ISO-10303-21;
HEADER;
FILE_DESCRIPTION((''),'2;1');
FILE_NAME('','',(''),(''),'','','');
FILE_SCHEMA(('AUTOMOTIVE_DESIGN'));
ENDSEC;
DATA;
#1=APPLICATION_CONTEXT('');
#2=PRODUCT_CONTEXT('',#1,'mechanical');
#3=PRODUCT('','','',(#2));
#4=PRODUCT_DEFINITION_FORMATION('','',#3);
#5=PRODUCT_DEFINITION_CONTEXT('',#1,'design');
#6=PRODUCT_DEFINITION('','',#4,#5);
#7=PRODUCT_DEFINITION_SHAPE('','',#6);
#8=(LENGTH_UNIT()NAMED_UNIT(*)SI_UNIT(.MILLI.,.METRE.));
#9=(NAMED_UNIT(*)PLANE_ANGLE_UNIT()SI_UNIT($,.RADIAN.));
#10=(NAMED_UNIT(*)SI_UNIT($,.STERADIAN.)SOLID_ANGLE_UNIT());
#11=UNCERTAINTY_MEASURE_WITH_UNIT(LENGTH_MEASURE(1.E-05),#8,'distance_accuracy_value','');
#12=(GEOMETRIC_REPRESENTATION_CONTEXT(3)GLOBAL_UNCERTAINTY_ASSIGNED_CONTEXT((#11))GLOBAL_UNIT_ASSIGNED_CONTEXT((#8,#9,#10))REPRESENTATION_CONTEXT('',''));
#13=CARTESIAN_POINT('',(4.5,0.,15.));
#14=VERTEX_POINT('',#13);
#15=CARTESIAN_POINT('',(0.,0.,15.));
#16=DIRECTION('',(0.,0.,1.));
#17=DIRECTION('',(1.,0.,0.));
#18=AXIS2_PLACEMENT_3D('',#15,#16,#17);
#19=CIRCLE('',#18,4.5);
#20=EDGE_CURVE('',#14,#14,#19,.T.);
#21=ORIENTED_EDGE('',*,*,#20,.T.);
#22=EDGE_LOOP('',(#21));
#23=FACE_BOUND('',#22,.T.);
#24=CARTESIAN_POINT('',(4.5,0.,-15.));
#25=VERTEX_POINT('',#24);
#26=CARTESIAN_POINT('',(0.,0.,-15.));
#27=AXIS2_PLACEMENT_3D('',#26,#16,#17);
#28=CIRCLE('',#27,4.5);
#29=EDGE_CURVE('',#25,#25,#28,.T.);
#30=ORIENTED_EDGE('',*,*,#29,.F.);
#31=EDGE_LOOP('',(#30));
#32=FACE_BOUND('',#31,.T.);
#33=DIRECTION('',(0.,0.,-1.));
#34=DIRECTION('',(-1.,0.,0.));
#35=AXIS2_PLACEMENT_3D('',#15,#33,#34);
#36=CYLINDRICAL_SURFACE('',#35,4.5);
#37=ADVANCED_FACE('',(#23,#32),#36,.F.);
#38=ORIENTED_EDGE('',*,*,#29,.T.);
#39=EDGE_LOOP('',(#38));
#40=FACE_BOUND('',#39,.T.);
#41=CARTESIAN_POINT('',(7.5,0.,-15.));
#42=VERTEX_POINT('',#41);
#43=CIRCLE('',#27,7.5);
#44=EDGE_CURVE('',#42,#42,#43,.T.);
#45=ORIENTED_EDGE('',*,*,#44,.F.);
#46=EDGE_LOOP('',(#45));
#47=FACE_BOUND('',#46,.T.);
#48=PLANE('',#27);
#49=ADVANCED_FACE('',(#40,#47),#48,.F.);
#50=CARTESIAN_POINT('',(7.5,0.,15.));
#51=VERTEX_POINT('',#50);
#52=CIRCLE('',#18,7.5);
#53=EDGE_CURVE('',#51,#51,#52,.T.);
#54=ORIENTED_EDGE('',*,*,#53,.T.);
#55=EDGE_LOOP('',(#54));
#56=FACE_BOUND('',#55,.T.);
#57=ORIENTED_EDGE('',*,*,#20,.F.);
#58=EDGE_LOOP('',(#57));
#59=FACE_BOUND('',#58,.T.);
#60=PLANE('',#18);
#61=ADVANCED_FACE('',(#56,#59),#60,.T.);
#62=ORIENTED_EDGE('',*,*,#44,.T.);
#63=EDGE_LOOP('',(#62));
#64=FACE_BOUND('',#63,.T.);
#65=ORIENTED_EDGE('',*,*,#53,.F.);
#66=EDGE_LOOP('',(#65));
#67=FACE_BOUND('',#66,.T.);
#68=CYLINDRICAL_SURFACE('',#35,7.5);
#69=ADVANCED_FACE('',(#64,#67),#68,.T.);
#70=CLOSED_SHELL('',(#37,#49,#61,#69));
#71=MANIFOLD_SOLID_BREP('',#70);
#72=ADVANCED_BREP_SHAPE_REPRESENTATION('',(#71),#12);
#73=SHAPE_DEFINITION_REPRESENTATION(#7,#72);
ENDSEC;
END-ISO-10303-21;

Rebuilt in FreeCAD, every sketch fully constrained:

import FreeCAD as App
import Part
import Sketcher
from FreeCAD import Vector

doc = App.newDocument("Part")
body = doc.addObject("PartDesign::Body", "Body")

sketch1 = body.newObject("Sketcher::SketchObject", "Sketch")
sketch1.AttachmentSupport = (doc.getObject("XY_Plane"), [""])
sketch1.MapMode = "FlatFace"
sketch1.addGeometry([
    Part.Circle(Vector(0, 0, 0), Vector(0, 0, 1), 7.5),
    Part.Circle(Vector(0, 0, 0), Vector(0, 0, 1), 4.5),
], False)
sketch1.addConstraint([
    Sketcher.Constraint("Coincident", 0, 3, -1, 1),
    Sketcher.Constraint("Coincident", 1, 3, -1, 1),
    Sketcher.Constraint("Diameter", 0, 15.0),
    Sketcher.Constraint("Diameter", 1, 9.0),
])
pad1 = body.newObject("PartDesign::Pad", "Pad")
pad1.Profile = sketch1
pad1.Length = 30
pad1.Midplane = True

doc.recompute()
